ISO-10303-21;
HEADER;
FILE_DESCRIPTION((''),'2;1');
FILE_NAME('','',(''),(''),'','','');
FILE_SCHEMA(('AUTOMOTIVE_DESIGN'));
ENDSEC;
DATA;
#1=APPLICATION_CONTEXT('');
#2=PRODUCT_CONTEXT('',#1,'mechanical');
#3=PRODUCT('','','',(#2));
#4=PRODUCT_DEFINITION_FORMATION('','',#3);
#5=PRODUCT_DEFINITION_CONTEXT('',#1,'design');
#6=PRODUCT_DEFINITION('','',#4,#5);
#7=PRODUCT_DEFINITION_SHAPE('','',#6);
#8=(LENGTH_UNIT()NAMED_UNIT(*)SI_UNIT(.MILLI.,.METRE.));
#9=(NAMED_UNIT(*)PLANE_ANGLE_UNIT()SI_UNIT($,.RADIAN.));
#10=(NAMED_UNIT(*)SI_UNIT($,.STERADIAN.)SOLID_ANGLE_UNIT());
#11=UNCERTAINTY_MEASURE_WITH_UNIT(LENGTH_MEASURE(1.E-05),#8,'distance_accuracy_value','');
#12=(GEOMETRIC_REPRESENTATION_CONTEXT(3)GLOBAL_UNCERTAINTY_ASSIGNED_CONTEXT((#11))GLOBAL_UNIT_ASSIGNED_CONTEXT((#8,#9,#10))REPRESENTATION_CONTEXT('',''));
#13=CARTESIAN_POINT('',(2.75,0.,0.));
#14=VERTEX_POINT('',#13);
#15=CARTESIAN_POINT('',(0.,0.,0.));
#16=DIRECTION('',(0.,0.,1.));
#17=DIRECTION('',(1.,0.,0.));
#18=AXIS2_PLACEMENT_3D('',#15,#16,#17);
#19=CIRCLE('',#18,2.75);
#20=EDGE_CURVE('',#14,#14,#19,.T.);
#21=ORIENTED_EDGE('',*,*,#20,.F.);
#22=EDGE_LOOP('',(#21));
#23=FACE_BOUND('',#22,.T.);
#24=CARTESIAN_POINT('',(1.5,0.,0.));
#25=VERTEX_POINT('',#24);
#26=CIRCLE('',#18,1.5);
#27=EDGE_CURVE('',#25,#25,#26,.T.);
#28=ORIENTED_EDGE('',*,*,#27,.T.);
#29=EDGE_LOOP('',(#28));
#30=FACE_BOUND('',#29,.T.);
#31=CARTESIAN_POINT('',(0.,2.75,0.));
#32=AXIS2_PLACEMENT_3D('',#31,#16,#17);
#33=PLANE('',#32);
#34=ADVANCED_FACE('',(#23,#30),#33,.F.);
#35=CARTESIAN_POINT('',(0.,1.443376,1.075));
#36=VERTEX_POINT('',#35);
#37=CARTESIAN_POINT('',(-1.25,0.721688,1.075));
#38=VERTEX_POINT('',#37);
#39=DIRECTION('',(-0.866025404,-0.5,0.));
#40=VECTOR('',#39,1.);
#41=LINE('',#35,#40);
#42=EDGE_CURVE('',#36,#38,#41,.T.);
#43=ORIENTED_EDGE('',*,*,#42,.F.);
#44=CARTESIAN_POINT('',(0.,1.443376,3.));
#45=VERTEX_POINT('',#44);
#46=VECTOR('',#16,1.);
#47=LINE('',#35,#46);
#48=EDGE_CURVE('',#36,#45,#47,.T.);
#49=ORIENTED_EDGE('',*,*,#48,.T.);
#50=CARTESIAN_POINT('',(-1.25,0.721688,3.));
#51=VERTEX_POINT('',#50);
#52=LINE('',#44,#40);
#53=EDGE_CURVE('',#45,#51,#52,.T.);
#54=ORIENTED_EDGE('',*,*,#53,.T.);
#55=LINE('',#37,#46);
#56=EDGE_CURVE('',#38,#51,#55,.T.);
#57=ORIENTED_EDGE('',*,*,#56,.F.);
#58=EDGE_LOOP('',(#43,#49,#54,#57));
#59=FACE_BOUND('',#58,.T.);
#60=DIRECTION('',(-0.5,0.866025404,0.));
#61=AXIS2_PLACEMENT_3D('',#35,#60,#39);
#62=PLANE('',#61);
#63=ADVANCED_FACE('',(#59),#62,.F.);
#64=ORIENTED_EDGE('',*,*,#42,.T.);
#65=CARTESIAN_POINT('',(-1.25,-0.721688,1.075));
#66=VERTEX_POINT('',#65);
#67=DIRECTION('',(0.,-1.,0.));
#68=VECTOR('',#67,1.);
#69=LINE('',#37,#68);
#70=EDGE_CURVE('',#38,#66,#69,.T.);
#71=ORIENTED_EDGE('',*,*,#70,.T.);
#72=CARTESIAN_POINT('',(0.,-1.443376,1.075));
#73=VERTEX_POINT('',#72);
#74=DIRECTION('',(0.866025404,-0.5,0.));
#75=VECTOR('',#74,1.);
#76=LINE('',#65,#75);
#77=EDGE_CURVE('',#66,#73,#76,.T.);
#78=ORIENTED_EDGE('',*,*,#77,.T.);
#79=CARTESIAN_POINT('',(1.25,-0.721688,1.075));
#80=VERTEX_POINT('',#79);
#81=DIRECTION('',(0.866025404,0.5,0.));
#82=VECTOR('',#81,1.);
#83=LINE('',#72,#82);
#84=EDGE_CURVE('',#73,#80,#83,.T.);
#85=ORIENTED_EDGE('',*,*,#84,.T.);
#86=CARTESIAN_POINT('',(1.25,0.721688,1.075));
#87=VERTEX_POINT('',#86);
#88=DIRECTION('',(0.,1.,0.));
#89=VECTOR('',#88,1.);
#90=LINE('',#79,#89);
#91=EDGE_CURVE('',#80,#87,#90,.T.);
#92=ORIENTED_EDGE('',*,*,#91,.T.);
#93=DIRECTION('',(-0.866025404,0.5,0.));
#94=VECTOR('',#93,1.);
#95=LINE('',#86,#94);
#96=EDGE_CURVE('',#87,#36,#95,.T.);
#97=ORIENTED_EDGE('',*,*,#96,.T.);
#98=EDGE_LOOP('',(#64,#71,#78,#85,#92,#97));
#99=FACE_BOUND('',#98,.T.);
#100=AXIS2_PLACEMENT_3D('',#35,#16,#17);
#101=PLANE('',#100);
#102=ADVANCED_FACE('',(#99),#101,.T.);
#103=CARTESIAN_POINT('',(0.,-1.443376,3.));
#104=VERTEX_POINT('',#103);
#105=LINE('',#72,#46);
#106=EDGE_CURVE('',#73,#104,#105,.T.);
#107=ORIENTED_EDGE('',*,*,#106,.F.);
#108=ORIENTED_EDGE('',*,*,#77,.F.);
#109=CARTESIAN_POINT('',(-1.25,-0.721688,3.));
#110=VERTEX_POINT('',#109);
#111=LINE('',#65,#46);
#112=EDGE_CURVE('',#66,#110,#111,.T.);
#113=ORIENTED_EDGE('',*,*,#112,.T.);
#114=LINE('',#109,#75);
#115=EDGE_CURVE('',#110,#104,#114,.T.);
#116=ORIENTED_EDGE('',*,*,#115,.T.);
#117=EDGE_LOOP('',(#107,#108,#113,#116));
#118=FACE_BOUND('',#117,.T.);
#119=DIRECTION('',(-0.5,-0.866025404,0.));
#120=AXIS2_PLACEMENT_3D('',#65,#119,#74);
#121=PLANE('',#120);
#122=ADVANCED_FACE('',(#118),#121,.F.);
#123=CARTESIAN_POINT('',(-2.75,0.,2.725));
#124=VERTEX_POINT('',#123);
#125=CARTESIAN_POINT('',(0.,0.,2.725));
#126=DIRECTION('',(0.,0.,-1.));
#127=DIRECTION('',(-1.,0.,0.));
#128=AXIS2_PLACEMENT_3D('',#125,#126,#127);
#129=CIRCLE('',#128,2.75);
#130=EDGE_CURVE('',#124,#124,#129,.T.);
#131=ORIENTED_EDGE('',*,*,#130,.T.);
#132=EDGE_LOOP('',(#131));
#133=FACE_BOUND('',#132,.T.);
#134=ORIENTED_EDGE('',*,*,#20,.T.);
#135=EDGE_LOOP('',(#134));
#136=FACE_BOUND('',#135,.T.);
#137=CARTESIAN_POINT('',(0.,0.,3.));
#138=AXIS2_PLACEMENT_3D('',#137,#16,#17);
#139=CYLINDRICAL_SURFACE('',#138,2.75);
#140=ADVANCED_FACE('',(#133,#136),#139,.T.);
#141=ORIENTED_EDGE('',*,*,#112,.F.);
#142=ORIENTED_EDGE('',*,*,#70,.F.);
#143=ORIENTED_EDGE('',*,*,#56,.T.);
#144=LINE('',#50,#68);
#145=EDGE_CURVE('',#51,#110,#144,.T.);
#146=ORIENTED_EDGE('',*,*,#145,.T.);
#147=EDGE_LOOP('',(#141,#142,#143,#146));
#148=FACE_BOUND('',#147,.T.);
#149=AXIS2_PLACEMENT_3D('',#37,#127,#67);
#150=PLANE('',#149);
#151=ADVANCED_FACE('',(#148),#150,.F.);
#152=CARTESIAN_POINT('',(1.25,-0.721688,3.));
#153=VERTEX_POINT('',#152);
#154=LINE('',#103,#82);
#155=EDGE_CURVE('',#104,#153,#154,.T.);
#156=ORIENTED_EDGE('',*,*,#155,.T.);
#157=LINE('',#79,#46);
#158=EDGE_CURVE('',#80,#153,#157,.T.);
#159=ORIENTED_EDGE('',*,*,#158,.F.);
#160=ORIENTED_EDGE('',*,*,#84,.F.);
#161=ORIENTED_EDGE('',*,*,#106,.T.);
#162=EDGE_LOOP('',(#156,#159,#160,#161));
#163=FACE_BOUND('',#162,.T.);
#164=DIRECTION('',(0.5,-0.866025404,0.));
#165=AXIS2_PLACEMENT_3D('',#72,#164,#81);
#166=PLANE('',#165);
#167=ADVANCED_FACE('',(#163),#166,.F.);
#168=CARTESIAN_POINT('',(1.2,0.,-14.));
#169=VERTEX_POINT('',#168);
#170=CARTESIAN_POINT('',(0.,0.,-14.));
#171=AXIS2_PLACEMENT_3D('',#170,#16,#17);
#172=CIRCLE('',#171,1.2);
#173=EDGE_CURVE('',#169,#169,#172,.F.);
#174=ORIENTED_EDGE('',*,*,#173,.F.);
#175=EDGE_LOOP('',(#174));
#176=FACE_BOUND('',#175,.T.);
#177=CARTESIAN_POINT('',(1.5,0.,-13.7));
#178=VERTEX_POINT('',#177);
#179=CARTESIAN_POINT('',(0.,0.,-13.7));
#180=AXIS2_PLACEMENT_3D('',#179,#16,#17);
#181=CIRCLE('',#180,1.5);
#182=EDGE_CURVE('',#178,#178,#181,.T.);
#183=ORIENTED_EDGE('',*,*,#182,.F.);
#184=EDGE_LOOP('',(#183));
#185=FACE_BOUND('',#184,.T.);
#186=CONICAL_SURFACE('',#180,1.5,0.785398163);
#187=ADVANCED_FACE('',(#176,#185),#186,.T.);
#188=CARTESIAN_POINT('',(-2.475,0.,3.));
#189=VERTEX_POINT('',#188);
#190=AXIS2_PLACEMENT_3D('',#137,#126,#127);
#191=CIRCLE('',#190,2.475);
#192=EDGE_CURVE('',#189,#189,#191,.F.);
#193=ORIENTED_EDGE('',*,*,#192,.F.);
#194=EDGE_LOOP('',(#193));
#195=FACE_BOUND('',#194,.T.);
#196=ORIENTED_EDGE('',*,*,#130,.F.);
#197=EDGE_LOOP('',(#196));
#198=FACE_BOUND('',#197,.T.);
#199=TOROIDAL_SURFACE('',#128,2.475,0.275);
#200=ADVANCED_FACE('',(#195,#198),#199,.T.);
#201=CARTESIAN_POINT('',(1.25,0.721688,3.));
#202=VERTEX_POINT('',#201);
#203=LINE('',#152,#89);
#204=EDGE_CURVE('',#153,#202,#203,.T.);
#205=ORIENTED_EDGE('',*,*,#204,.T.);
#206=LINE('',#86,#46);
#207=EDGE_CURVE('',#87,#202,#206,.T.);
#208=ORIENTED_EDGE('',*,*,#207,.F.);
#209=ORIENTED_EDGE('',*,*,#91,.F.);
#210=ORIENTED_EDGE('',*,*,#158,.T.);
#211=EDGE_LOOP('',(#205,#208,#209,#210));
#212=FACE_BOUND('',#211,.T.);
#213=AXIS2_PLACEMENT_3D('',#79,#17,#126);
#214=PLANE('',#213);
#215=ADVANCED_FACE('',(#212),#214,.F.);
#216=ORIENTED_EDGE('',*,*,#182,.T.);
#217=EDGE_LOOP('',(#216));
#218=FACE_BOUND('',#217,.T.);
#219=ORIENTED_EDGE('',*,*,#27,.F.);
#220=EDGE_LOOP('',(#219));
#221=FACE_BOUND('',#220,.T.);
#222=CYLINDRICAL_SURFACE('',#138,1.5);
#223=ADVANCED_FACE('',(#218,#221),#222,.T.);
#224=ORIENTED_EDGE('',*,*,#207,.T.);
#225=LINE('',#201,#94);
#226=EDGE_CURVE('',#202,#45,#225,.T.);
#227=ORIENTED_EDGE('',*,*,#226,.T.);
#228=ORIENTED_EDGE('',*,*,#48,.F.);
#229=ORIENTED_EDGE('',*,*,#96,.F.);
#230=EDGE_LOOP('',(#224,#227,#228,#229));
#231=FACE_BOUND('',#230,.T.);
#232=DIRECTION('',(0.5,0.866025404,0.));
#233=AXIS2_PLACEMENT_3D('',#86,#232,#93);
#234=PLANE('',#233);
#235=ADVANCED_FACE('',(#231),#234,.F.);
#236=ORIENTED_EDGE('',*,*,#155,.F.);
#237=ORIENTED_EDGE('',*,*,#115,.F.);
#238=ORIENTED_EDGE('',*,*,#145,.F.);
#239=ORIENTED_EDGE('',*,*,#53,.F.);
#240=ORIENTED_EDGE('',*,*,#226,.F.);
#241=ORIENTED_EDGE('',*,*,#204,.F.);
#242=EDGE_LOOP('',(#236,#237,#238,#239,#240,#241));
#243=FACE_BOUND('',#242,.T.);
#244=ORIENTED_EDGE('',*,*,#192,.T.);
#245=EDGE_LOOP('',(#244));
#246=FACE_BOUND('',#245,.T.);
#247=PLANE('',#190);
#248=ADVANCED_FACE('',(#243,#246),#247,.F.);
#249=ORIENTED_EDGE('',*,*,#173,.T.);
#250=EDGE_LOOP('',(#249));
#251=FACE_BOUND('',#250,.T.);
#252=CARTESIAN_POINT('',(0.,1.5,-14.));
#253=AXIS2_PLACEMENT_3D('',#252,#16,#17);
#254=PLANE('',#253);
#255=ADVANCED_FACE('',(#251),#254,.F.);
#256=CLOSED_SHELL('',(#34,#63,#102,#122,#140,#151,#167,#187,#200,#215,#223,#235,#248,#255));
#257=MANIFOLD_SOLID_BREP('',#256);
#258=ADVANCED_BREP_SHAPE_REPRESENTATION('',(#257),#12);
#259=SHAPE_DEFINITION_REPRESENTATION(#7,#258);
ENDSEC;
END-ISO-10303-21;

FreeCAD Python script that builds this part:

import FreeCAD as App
import Part
import Sketcher
Q = App.Units.Quantity


def edges_at(feature, points):
    """Names of the edges that pass closest to the given points."""
    edges = feature.Shape.Edges
    near = lambda p: min(range(len(edges)), key=lambda i: edges[i].distToShape(Part.Vertex(*p))[0])
    return sorted({f"Edge{near(p) + 1}" for p in points})


def add_polygon(sketch, points):
    """Adds a closed chain of lines whose ends are joined by coincident constraints."""
    first, n = sketch.GeometryCount, len(points)
    for a, b in zip(points, points[1:] + points[:1]):
        sketch.addGeometry(Part.LineSegment(App.Vector(*a, 0), App.Vector(*b, 0)), False)
    for i in range(n):
        sketch.addConstraint(Sketcher.Constraint("Coincident", first + i, 2, first + (i + 1) % n, 1))

doc = App.newDocument("Part")
params = doc.addObject("Spreadsheet::Sheet", "Params")
for row, (alias, value) in enumerate([
    ("sketch1_height", "17 mm"),
    ("sketch1_height2", "14 mm"),
    ("sketch1_width", "1.5 mm"),
    ("sketch1_width2", "2.75 mm"),
    ("revolution_angle", "360 deg"),
    ("pocket1_length", "1.925 mm"),
    ("fillet_radius", "0.275 mm"),
    ("chamfer_size", "0.3 mm"),
], start=1):
    params.set(f"A{row}", alias)
    params.set(f"B{row}", "=" + value)
    params.setAlias(f"B{row}", alias)

body = doc.addObject("PartDesign::Body", "Body")

sketch1 = body.newObject("Sketcher::SketchObject", "Sketch")
sketch1.AttachmentSupport = (doc.getObject("YZ_Plane"), [""])
sketch1.MapMode = "FlatFace"
add_polygon(sketch1, [(2.8, 3), (0, 3), (0, -14), (1.5, -14), (1.5, 0), (2.8, 0)])
sketch1.addConstraint([
    Sketcher.Constraint("Horizontal", 0),
    Sketcher.Constraint("Vertical", 1),
    Sketcher.Constraint("Horizontal", 2),
    Sketcher.Constraint("Vertical", 3),
    Sketcher.Constraint("Horizontal", 4),
    Sketcher.Constraint("Vertical", 5),
    Sketcher.Constraint("PointOnObject", 0, 2, -2),
    Sketcher.Constraint("PointOnObject", 3, 2, -1),
    Sketcher.Constraint("DistanceY", 1, 2, 1, 1, Q("17 mm")),
    Sketcher.Constraint("DistanceY", 3, 1, 3, 2, Q("14 mm")),
    Sketcher.Constraint("DistanceX", 2, 1, 2, 2, Q("1.5 mm")),
    Sketcher.Constraint("DistanceX", 0, 2, 0, 1, Q("2.75 mm")),
])
sketch1.setExpression("Constraints[14]", "Params.sketch1_height")
sketch1.setExpression("Constraints[15]", "Params.sketch1_height2")
sketch1.setExpression("Constraints[16]", "Params.sketch1_width")
sketch1.setExpression("Constraints[17]", "Params.sketch1_width2")
revolution = body.newObject("PartDesign::Revolution", "Revolution")
revolution.Profile = sketch1
revolution.ReferenceAxis = (sketch1, ["V_Axis"])
revolution.setExpression("Angle", "Params.revolution_angle")

sketch2 = body.newObject("Sketcher::SketchObject", "Sketch001")
sketch2.AttachmentSupport = (doc.getObject("XY_Plane"), [""])
sketch2.MapMode = "FlatFace"
sketch2.AttachmentOffset = App.Placement(App.Vector(0, 0, 3), App.Rotation())
add_polygon(sketch2, [(0, 1.4), (-1.2, 0.7), (-1.2, -0.7), (0, -1.4), (1.2, -0.7), (1.2, 0.7)])
sketch2.addConstraint([
    Sketcher.Constraint("Vertical", 1),
    Sketcher.Constraint("Vertical", 4),
    Sketcher.Constraint("Symmetric", 0, 2, 3, 2, -1, 1),
    Sketcher.Constraint("Symmetric", 2, 2, 5, 2, -1, 1),
    Sketcher.Constraint("PointOnObject", 2, 2, -2),
    Sketcher.Constraint("Parallel", 2, 5),
    Sketcher.Constraint("Horizontal", 1, 2, 3, 2),
    Sketcher.Constraint("Angle", 0, Q("-150 deg")),
    Sketcher.Constraint("DistanceX", 1, 2, 3, 2, Q("2.5 mm")),
    Sketcher.Constraint("DistanceY", 1, 2, 1, 1, Q("1.443376 mm")),
])
pocket1 = body.newObject("PartDesign::Pocket", "Pocket")
pocket1.Profile = sketch2
pocket1.setExpression("Length", "Params.pocket1_length")
doc.recompute()

fillet = body.newObject("PartDesign::Fillet", "Fillet")
fillet.Base = (pocket1, edges_at(pocket1, [(-2.75, 0, 3)]))
fillet.setExpression("Radius", "Params.fillet_radius")
doc.recompute()

chamfer = body.newObject("PartDesign::Chamfer", "Chamfer")
chamfer.Base = (fillet, edges_at(fillet, [(-1.5, 0, -14)]))
chamfer.setExpression("Size", "Params.chamfer_size")

doc.recompute()
